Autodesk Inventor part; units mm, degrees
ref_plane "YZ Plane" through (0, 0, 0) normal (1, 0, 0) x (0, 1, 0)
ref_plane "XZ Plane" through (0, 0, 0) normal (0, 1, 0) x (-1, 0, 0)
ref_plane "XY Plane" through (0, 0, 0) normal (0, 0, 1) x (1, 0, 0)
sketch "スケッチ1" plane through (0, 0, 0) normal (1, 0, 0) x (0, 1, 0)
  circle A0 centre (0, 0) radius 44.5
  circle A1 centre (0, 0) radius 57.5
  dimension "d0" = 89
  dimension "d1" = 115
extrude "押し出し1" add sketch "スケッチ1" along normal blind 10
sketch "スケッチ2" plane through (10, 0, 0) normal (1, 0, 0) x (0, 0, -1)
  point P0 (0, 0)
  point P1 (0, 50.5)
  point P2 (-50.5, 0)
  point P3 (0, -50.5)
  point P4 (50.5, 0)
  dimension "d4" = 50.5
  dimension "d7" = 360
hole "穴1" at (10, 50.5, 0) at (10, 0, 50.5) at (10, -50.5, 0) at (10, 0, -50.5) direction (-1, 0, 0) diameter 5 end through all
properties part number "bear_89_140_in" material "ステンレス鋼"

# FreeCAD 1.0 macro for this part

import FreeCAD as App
import Part
import Sketcher
from FreeCAD import Vector
Q = App.Units.Quantity

doc = App.newDocument("Part")
body = doc.addObject("PartDesign::Body", "Body")

# Sketch on YZ plane
sketch1 = body.newObject("Sketcher::SketchObject", "Sketch")
sketch1.AttachmentSupport = (doc.getObject("YZ_Plane"), [""])
sketch1.MapMode = "FlatFace"
sketch1.addGeometry(Part.Circle(Vector(0, 0, 0), Vector(0, 0, 1), 58), False)
sketch1.addGeometry(Part.Circle(Vector(0, 0, 0), Vector(0, 0, 1), 44), False)
sketch1.addConstraint(Sketcher.Constraint("Coincident", 0, 3, -1, 1))
sketch1.addConstraint(Sketcher.Constraint("Coincident", 1, 3, -1, 1))
sketch1.addConstraint(Sketcher.Constraint("Diameter", 0, Q("115 mm")))
sketch1.addConstraint(Sketcher.Constraint("Diameter", 1, Q("89 mm")))
pad1 = body.newObject("PartDesign::Pad", "Pad")
pad1.Profile = sketch1
pad1.Length = 10

# Sketch on YZ plane
sketch2 = body.newObject("Sketcher::SketchObject", "Sketch001")
sketch2.AttachmentSupport = (doc.getObject("YZ_Plane"), [""])
sketch2.MapMode = "FlatFace"
sketch2.AttachmentOffset = App.Placement(Vector(0, 0, 10), App.Rotation())
sketch2.addGeometry(Part.Circle(Vector(50.5, 0, 0), Vector(0, 0, 1), 2.5), False)
sketch2.addGeometry(Part.Circle(Vector(0, 50.5, 0), Vector(0, 0, 1), 2.5), False)
sketch2.addGeometry(Part.Circle(Vector(-50.5, 0, 0), Vector(0, 0, 1), 2.5), False)
sketch2.addGeometry(Part.Circle(Vector(0, -50.5, 0), Vector(0, 0, 1), 2.5), False)
sketch2.addConstraint(Sketcher.Constraint("Equal", 0, 1))
sketch2.addConstraint(Sketcher.Constraint("Equal", 1, 2))
sketch2.addConstraint(Sketcher.Constraint("Equal", 2, 3))
sketch2.addConstraint(Sketcher.Constraint("Symmetric", 0, 3, 2, 3, -1, 1))
sketch2.addConstraint(Sketcher.Constraint("Symmetric", 1, 3, 3, 3, -1, 1))
sketch2.addConstraint(Sketcher.Constraint("PointOnObject", 0, 3, -1))
sketch2.addConstraint(Sketcher.Constraint("PointOnObject", 1, 3, -2))
sketch2.addConstraint(Sketcher.Constraint("Diameter", 0, Q("5 mm")))
sketch2.addConstraint(Sketcher.Constraint("DistanceX", 2, 3, 0, 3, Q("101 mm")))
sketch2.addConstraint(Sketcher.Constraint("DistanceY", 3, 3, 1, 3, Q("101 mm")))
doc.recompute()
hole = body.newObject("PartDesign::Hole", "Hole")
hole.Profile = sketch2
hole.ThreadType = "None"
hole.Diameter = 5
hole.DepthType = "ThroughAll"

doc.recompute()
